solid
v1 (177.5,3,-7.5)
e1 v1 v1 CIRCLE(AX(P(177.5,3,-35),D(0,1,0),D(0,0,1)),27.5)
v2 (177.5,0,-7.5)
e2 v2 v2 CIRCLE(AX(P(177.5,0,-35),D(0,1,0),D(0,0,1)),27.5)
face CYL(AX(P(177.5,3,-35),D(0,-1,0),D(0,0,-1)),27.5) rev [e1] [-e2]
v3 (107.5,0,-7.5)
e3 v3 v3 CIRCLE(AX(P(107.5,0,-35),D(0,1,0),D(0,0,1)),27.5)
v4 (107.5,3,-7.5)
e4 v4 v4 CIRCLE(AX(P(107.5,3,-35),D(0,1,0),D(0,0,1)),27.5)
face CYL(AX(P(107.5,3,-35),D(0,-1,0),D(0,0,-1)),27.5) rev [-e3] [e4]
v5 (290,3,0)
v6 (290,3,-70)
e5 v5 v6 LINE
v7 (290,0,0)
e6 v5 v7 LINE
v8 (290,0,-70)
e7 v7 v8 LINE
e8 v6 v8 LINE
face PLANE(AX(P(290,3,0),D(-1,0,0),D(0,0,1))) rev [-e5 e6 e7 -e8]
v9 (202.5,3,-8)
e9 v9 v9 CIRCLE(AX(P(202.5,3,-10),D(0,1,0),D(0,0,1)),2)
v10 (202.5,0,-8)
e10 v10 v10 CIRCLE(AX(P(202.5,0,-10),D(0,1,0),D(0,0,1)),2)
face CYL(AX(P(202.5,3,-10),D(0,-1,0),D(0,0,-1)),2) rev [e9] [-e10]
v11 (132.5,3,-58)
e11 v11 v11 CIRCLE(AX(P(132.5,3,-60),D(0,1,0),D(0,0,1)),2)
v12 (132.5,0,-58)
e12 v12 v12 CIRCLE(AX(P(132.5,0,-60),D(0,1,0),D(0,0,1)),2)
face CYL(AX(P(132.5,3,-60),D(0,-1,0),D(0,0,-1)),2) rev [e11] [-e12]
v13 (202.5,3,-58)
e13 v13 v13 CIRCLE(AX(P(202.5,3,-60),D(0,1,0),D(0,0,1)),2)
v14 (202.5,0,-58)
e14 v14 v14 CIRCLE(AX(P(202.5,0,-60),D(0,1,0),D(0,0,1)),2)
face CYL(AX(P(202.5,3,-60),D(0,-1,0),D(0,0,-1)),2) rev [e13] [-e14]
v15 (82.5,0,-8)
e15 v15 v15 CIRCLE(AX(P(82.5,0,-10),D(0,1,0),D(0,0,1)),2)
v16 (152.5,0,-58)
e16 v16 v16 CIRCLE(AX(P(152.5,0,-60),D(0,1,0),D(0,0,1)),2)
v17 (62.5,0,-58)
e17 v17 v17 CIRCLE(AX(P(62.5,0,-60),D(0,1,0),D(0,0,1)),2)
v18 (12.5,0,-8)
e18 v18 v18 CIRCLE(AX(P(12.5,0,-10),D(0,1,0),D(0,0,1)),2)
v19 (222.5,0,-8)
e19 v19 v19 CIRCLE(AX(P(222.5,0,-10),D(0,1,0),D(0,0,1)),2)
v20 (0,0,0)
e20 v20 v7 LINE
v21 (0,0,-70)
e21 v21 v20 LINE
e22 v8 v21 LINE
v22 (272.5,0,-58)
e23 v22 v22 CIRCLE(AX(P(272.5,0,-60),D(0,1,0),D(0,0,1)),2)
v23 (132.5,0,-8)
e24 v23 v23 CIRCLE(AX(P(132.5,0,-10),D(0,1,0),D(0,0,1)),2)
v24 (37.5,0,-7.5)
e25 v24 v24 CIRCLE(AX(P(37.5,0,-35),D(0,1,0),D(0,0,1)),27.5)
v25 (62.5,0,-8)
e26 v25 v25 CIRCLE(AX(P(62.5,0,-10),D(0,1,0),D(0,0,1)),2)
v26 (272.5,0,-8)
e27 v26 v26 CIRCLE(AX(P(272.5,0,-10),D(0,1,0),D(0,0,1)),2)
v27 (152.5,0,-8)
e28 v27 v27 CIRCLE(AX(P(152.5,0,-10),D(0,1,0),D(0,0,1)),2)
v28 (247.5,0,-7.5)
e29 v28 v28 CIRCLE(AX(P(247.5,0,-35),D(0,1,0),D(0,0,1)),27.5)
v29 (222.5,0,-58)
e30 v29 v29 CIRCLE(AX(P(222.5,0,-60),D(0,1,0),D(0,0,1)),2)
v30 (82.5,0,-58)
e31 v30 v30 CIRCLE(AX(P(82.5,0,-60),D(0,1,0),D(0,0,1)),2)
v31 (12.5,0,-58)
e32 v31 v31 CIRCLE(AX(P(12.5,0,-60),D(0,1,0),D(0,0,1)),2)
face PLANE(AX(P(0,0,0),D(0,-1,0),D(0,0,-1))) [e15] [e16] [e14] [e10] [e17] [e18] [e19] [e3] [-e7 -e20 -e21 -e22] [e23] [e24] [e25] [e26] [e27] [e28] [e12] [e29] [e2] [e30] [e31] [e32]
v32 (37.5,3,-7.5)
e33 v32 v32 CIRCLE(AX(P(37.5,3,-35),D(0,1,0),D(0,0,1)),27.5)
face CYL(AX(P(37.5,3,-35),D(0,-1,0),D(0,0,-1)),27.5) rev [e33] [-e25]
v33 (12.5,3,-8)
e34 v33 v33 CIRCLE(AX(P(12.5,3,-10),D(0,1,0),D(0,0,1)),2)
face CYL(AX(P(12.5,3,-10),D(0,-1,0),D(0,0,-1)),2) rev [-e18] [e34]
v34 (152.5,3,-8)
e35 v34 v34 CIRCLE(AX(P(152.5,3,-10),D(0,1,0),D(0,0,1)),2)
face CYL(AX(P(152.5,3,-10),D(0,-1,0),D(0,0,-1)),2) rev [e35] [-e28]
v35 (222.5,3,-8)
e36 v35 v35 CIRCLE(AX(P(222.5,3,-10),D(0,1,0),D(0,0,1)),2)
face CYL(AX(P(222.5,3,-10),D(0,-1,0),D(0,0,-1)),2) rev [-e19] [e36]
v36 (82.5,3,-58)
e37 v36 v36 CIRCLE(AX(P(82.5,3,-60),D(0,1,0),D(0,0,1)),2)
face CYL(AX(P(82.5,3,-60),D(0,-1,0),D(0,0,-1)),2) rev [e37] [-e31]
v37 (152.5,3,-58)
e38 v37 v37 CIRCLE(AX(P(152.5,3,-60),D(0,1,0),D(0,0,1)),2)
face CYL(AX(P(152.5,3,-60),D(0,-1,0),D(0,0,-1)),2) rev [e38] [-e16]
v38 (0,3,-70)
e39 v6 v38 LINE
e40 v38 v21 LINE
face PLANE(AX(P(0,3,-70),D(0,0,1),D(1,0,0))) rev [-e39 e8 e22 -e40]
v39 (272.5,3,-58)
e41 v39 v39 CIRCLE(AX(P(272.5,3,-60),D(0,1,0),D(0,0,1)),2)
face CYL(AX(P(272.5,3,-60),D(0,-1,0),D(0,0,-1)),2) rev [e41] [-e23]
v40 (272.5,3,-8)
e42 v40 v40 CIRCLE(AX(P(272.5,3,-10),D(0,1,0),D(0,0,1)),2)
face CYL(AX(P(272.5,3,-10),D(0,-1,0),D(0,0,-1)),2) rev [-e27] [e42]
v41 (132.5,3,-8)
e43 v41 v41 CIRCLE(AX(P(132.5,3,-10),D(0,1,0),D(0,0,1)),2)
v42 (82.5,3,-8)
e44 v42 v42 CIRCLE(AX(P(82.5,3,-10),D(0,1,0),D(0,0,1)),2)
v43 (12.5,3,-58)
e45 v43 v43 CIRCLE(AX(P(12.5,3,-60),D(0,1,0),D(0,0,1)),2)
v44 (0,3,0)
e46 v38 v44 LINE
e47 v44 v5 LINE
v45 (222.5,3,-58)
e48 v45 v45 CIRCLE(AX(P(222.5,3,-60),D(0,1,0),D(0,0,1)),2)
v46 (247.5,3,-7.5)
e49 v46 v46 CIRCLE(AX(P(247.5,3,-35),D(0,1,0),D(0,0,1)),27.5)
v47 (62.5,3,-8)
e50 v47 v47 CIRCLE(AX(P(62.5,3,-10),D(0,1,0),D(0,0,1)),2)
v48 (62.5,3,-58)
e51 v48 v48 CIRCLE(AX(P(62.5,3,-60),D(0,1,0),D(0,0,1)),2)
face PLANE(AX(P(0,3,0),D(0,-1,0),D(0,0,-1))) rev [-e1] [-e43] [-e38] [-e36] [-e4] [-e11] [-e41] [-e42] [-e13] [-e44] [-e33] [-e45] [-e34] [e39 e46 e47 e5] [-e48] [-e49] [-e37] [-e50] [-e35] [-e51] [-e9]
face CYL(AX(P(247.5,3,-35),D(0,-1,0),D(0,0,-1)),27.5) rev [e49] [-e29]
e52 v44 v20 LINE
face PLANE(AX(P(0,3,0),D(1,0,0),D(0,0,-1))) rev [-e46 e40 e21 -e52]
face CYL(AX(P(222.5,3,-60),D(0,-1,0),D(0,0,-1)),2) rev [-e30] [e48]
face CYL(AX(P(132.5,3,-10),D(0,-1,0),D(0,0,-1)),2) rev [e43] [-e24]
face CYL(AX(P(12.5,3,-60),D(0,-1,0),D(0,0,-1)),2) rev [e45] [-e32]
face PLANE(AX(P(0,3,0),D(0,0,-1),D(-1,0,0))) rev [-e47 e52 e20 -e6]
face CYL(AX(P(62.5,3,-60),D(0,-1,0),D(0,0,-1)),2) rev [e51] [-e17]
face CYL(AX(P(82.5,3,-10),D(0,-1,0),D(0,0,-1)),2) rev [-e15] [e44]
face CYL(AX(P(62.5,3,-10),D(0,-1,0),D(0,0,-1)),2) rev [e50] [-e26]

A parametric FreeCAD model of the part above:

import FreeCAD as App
import Part
import Sketcher
from FreeCAD import Vector

doc = App.newDocument("Part")
params = doc.addObject("Spreadsheet::Sheet", "Params")
for row, (alias, value) in enumerate([
    ("sketch1_diameter", "4 mm"),
    ("sketch1_diameter2", "55 mm"),
    ("sketch1_width", "290 mm"),
    ("sketch1_height", "70 mm"),
    ("pad1_length", "3 mm"),
], start=1):
    params.set(f"A{row}", alias)
    params.set(f"B{row}", "=" + value)
    params.setAlias(f"B{row}", alias)

body = doc.addObject("PartDesign::Body", "Body")

# Sketch on XZ plane
sketch1 = body.newObject("Sketcher::SketchObject", "Sketch")
sketch1.AttachmentSupport = (doc.getObject("XZ_Plane"), [""])
sketch1.MapMode = "FlatFace"
sketch1.addGeometry([
    Part.LineSegment(Vector(0, -70, 0), Vector(0, 0, 0)),  # 0
    Part.LineSegment(Vector(0, 0, 0), Vector(290, 0, 0)),  # 1
    Part.LineSegment(Vector(290, 0, 0), Vector(290, -70, 0)),  # 2
    Part.LineSegment(Vector(290, -70, 0), Vector(0, -70, 0)),  # 3
    Part.Circle(Vector(12.5, -10, 0), Vector(0, 0, 1), 2),  # 4
    Part.Circle(Vector(62.5, -10, 0), Vector(0, 0, 1), 2),  # 5
    Part.Circle(Vector(82.5, -10, 0), Vector(0, 0, 1), 2),  # 6
    Part.Circle(Vector(132.5, -10, 0), Vector(0, 0, 1), 2),  # 7
    Part.Circle(Vector(152.5, -10, 0), Vector(0, 0, 1), 2),  # 8
    Part.Circle(Vector(202.5, -10, 0), Vector(0, 0, 1), 2),  # 9
    Part.Circle(Vector(222.5, -10, 0), Vector(0, 0, 1), 2),  # 10
    Part.Circle(Vector(272.5, -10, 0), Vector(0, 0, 1), 2),  # 11
    Part.Circle(Vector(37.5, -35, 0), Vector(0, 0, 1), 27.5),  # 12
    Part.Circle(Vector(107.5, -35, 0), Vector(0, 0, 1), 27.5),  # 13
    Part.Circle(Vector(12.5, -60, 0), Vector(0, 0, 1), 2),  # 14
    Part.Circle(Vector(62.5, -60, 0), Vector(0, 0, 1), 2),  # 15
    Part.Circle(Vector(82.5, -60, 0), Vector(0, 0, 1), 2),  # 16
    Part.Circle(Vector(132.5, -60, 0), Vector(0, 0, 1), 2),  # 17
    Part.Circle(Vector(177.5, -35, 0), Vector(0, 0, 1), 27.5),  # 18
    Part.Circle(Vector(247.5, -35, 0), Vector(0, 0, 1), 27.5),  # 19
    Part.Circle(Vector(152.5, -60, 0), Vector(0, 0, 1), 2),  # 20
    Part.Circle(Vector(202.5, -60, 0), Vector(0, 0, 1), 2),  # 21
    Part.Circle(Vector(222.5, -60, 0), Vector(0, 0, 1), 2),  # 22
    Part.Circle(Vector(272.5, -60, 0), Vector(0, 0, 1), 2),  # 23
], False)
sketch1.addConstraint([
    Sketcher.Constraint("Coincident", 0, 2, 1, 1),
    Sketcher.Constraint("Coincident", 1, 2, 2, 1),
    Sketcher.Constraint("Coincident", 2, 2, 3, 1),
    Sketcher.Constraint("Coincident", 3, 2, 0, 1),
    Sketcher.Constraint("Vertical", 0),
    Sketcher.Constraint("Horizontal", 1),
    Sketcher.Constraint("Vertical", 2),
    Sketcher.Constraint("Horizontal", 3),
    Sketcher.Constraint("Coincident", 0, 2, -1, 1),
    Sketcher.Constraint("Equal", 4, 5),
    Sketcher.Constraint("Equal", 5, 6),
    Sketcher.Constraint("Equal", 6, 7),
    Sketcher.Constraint("Equal", 7, 8),
    Sketcher.Constraint("Equal", 8, 9),
    Sketcher.Constraint("Equal", 9, 10),
    Sketcher.Constraint("Equal", 10, 11),
    Sketcher.Constraint("Equal", 12, 13),
    Sketcher.Constraint("Equal", 11, 14),
    Sketcher.Constraint("Equal", 14, 15),
    Sketcher.Constraint("Equal", 15, 16),
    Sketcher.Constraint("Equal", 16, 17),
    Sketcher.Constraint("Equal", 13, 18),
    Sketcher.Constraint("Equal", 18, 19),
    Sketcher.Constraint("Equal", 17, 20),
    Sketcher.Constraint("Equal", 20, 21),
    Sketcher.Constraint("Equal", 21, 22),
    Sketcher.Constraint("Equal", 22, 23),
    Sketcher.Constraint("Horizontal", 4, 3, 5, 3),
    Sketcher.Constraint("Horizontal", 5, 3, 6, 3),
    Sketcher.Constraint("Horizontal", 6, 3, 7, 3),
    Sketcher.Constraint("Horizontal", 7, 3, 8, 3),
    Sketcher.Constraint("Horizontal", 8, 3, 9, 3),
    Sketcher.Constraint("Horizontal", 9, 3, 10, 3),
    Sketcher.Constraint("Horizontal", 10, 3, 11, 3),
    Sketcher.Constraint("Horizontal", 12, 3, 13, 3),
    Sketcher.Constraint("Horizontal", 14, 3, 15, 3),
    Sketcher.Constraint("Horizontal", 15, 3, 16, 3),
    Sketcher.Constraint("Horizontal", 16, 3, 17, 3),
    Sketcher.Constraint("Horizontal", 13, 3, 18, 3),
    Sketcher.Constraint("Horizontal", 18, 3, 19, 3),
    Sketcher.Constraint("Horizontal", 17, 3, 20, 3),
    Sketcher.Constraint("Horizontal", 20, 3, 21, 3),
    Sketcher.Constraint("Horizontal", 21, 3, 22, 3),
    Sketcher.Constraint("Horizontal", 22, 3, 23, 3),
    Sketcher.Constraint("Vertical", 4, 3, 14, 3),
    Sketcher.Constraint("Vertical", 5, 3, 15, 3),
    Sketcher.Constraint("Vertical", 6, 3, 16, 3),
    Sketcher.Constraint("Vertical", 7, 3, 17, 3),
    Sketcher.Constraint("Vertical", 8, 3, 20, 3),
    Sketcher.Constraint("Vertical", 9, 3, 21, 3),
    Sketcher.Constraint("Vertical", 10, 3, 22, 3),
    Sketcher.Constraint("Vertical", 11, 3, 23, 3),
    Sketcher.Constraint("Diameter", 4, 4.0),
    Sketcher.Constraint("Diameter", 12, 55.0),
    Sketcher.Constraint("DistanceX", 1, 1, 1, 2, 290.0),
    Sketcher.Constraint("DistanceY", 0, 1, 0, 2, 70.0),
    Sketcher.Constraint("DistanceY", 4, 3, -1, 1, 10.0),
    Sketcher.Constraint("DistanceY", 12, 3, -1, 1, 35.0),
    Sketcher.Constraint("DistanceY", 14, 3, -1, 1, 60.0),
    Sketcher.Constraint("DistanceX", 4, 3, 5, 3, 50.0),
    Sketcher.Constraint("DistanceX", 5, 3, 6, 3, 20.0),
    Sketcher.Constraint("DistanceX", 6, 3, 7, 3, 50.0),
    Sketcher.Constraint("DistanceX", 7, 3, 8, 3, 20.0),
    Sketcher.Constraint("DistanceX", 8, 3, 9, 3, 50.0),
    Sketcher.Constraint("DistanceX", 9, 3, 10, 3, 20.0),
    Sketcher.Constraint("DistanceX", 10, 3, 11, 3, 50.0),
    Sketcher.Constraint("DistanceX", 4, 3, 12, 3, 25.0),
    Sketcher.Constraint("DistanceX", 6, 3, 13, 3, 25.0),
    Sketcher.Constraint("DistanceX", 8, 3, 18, 3, 25.0),
    Sketcher.Constraint("DistanceX", 10, 3, 19, 3, 25.0),
    Sketcher.Constraint("DistanceX", -1, 1, 4, 3, 12.5),
])
sketch1.setExpression("Constraints[52]", "Params.sketch1_diameter")
sketch1.setExpression("Constraints[53]", "Params.sketch1_diameter2")
sketch1.setExpression("Constraints[54]", "Params.sketch1_width")
sketch1.setExpression("Constraints[55]", "Params.sketch1_height")
pad1 = body.newObject("PartDesign::Pad", "Pad")
pad1.Profile = sketch1
pad1.setExpression("Length", "Params.pad1_length")
pad1.Reversed = True

doc.recompute()
